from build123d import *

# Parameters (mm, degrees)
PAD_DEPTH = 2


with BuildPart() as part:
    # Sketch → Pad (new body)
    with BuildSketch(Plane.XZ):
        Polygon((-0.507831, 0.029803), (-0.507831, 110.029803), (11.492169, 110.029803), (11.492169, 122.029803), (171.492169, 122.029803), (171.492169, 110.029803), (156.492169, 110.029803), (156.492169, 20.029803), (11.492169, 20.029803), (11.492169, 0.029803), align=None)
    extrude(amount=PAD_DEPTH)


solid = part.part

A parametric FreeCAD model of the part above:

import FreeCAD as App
import Part
import Sketcher
from FreeCAD import Vector
Q = App.Units.Quantity

doc = App.newDocument("Part")
body = doc.addObject("PartDesign::Body", "Body")

# Sketch on XZ plane
sketch1 = doc.addObject("Sketcher::SketchObject", "Sketch")
body.addObject(sketch1)
sketch1.AttachmentSupport = (doc.XZ_Plane, [""])
sketch1.MapMode = "FlatFace"
sketch1.addGeometry([
    Part.LineSegment(Vector(-1, 110, 0), Vector(-1, 0, 0)),  # 0
    Part.LineSegment(Vector(-1, 0, 0), Vector(11, 0, 0)),  # 1
    Part.LineSegment(Vector(11, 0, 0), Vector(11, 20, 0)),  # 2
    Part.LineSegment(Vector(11, 20, 0), Vector(156, 20, 0)),  # 3
    Part.LineSegment(Vector(156, 20, 0), Vector(156, 110, 0)),  # 4
    Part.LineSegment(Vector(156, 110, 0), Vector(171, 110, 0)),  # 5
    Part.LineSegment(Vector(171, 110, 0), Vector(171, 122, 0)),  # 6
    Part.LineSegment(Vector(171, 122, 0), Vector(11, 122, 0)),  # 7
    Part.LineSegment(Vector(11, 122, 0), Vector(11, 110, 0)),  # 8
    Part.LineSegment(Vector(11, 110, 0), Vector(-1, 110, 0)),  # 9
], False)
sketch1.addConstraint([
    Sketcher.Constraint("Coincident", 0, 2, 1, 1),
    Sketcher.Constraint("Coincident", 1, 2, 2, 1),
    Sketcher.Constraint("Coincident", 2, 2, 3, 1),
    Sketcher.Constraint("Coincident", 3, 2, 4, 1),
    Sketcher.Constraint("Coincident", 4, 2, 5, 1),
    Sketcher.Constraint("Coincident", 5, 2, 6, 1),
    Sketcher.Constraint("Coincident", 6, 2, 7, 1),
    Sketcher.Constraint("Coincident", 7, 2, 8, 1),
    Sketcher.Constraint("Coincident", 8, 2, 9, 1),
    Sketcher.Constraint("Coincident", 9, 2, 0, 1),
    Sketcher.Constraint("Vertical", 0),
    Sketcher.Constraint("Horizontal", 1),
    Sketcher.Constraint("Vertical", 2),
    Sketcher.Constraint("Horizontal", 3),
    Sketcher.Constraint("Vertical", 4),
    Sketcher.Constraint("Horizontal", 5),
    Sketcher.Constraint("Vertical", 6),
    Sketcher.Constraint("Horizontal", 7),
    Sketcher.Constraint("Vertical", 8),
    Sketcher.Constraint("Horizontal", 9),
    Sketcher.Constraint("Horizontal", 5, 2, 8, 2),
    Sketcher.Constraint("Vertical", 2, 2, 7, 2),
    Sketcher.Constraint("Equal", 9, 6),
    Sketcher.Constraint("DistanceX", 1, 1, 1, 2, Q("12 mm")),
    Sketcher.Constraint("DistanceX", 3, 1, 3, 2, Q("145 mm")),
    Sketcher.Constraint("DistanceX", 5, 1, 5, 2, Q("15 mm")),
    Sketcher.Constraint("DistanceY", 0, 2, 0, 1, Q("110 mm")),
    Sketcher.Constraint("DistanceY", 2, 1, 2, 2, Q("20 mm")),
    Sketcher.Constraint("DistanceX", 0, 2, -1, 1, Q("0.507831 mm")),
    Sketcher.Constraint("DistanceY", -1, 1, 0, 2, Q("0.029803 mm")),
])
pad1 = doc.addObject("PartDesign::Pad", "Pad")
body.addObject(pad1)
pad1.Profile = sketch1
pad1.Length = 2

doc.recompute()
